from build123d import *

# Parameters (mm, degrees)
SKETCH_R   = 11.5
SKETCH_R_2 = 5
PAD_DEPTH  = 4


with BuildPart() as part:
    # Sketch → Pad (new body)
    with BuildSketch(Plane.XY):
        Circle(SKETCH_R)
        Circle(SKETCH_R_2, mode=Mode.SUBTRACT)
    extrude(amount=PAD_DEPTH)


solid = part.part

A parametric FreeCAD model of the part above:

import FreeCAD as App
import Part
import Sketcher
from FreeCAD import Vector

doc = App.newDocument("Part")
params = doc.addObject("Spreadsheet::Sheet", "Params")
for row, (alias, value) in enumerate([
    ("sketch1_diameter", "23 mm"),
    ("sketch1_diameter2", "10 mm"),
    ("pad1_length", "4 mm"),
], start=1):
    params.set(f"A{row}", alias)
    params.set(f"B{row}", "=" + value)
    params.setAlias(f"B{row}", alias)

body = doc.addObject("PartDesign::Body", "Body")

# Sketch on XY plane
sketch1 = body.newObject("Sketcher::SketchObject", "Sketch")
sketch1.AttachmentSupport = (doc.getObject("XY_Plane"), [""])
sketch1.MapMode = "FlatFace"
sketch1.addGeometry([
    Part.Circle(Vector(0, 0, 0), Vector(0, 0, 1), 12),
    Part.Circle(Vector(0, 0, 0), Vector(0, 0, 1), 5),
], False)
sketch1.addConstraint([
    Sketcher.Constraint("Coincident", 0, 3, -1, 1),
    Sketcher.Constraint("Coincident", 1, 3, -1, 1),
    Sketcher.Constraint("Diameter", 0, 23.0),
    Sketcher.Constraint("Diameter", 1, 10.0),
])
sketch1.setExpression("Constraints[2]", "Params.sketch1_diameter")
sketch1.setExpression("Constraints[3]", "Params.sketch1_diameter2")
pad1 = body.newObject("PartDesign::Pad", "Pad")
pad1.Profile = sketch1
pad1.setExpression("Length", "Params.pad1_length")

doc.recompute()
